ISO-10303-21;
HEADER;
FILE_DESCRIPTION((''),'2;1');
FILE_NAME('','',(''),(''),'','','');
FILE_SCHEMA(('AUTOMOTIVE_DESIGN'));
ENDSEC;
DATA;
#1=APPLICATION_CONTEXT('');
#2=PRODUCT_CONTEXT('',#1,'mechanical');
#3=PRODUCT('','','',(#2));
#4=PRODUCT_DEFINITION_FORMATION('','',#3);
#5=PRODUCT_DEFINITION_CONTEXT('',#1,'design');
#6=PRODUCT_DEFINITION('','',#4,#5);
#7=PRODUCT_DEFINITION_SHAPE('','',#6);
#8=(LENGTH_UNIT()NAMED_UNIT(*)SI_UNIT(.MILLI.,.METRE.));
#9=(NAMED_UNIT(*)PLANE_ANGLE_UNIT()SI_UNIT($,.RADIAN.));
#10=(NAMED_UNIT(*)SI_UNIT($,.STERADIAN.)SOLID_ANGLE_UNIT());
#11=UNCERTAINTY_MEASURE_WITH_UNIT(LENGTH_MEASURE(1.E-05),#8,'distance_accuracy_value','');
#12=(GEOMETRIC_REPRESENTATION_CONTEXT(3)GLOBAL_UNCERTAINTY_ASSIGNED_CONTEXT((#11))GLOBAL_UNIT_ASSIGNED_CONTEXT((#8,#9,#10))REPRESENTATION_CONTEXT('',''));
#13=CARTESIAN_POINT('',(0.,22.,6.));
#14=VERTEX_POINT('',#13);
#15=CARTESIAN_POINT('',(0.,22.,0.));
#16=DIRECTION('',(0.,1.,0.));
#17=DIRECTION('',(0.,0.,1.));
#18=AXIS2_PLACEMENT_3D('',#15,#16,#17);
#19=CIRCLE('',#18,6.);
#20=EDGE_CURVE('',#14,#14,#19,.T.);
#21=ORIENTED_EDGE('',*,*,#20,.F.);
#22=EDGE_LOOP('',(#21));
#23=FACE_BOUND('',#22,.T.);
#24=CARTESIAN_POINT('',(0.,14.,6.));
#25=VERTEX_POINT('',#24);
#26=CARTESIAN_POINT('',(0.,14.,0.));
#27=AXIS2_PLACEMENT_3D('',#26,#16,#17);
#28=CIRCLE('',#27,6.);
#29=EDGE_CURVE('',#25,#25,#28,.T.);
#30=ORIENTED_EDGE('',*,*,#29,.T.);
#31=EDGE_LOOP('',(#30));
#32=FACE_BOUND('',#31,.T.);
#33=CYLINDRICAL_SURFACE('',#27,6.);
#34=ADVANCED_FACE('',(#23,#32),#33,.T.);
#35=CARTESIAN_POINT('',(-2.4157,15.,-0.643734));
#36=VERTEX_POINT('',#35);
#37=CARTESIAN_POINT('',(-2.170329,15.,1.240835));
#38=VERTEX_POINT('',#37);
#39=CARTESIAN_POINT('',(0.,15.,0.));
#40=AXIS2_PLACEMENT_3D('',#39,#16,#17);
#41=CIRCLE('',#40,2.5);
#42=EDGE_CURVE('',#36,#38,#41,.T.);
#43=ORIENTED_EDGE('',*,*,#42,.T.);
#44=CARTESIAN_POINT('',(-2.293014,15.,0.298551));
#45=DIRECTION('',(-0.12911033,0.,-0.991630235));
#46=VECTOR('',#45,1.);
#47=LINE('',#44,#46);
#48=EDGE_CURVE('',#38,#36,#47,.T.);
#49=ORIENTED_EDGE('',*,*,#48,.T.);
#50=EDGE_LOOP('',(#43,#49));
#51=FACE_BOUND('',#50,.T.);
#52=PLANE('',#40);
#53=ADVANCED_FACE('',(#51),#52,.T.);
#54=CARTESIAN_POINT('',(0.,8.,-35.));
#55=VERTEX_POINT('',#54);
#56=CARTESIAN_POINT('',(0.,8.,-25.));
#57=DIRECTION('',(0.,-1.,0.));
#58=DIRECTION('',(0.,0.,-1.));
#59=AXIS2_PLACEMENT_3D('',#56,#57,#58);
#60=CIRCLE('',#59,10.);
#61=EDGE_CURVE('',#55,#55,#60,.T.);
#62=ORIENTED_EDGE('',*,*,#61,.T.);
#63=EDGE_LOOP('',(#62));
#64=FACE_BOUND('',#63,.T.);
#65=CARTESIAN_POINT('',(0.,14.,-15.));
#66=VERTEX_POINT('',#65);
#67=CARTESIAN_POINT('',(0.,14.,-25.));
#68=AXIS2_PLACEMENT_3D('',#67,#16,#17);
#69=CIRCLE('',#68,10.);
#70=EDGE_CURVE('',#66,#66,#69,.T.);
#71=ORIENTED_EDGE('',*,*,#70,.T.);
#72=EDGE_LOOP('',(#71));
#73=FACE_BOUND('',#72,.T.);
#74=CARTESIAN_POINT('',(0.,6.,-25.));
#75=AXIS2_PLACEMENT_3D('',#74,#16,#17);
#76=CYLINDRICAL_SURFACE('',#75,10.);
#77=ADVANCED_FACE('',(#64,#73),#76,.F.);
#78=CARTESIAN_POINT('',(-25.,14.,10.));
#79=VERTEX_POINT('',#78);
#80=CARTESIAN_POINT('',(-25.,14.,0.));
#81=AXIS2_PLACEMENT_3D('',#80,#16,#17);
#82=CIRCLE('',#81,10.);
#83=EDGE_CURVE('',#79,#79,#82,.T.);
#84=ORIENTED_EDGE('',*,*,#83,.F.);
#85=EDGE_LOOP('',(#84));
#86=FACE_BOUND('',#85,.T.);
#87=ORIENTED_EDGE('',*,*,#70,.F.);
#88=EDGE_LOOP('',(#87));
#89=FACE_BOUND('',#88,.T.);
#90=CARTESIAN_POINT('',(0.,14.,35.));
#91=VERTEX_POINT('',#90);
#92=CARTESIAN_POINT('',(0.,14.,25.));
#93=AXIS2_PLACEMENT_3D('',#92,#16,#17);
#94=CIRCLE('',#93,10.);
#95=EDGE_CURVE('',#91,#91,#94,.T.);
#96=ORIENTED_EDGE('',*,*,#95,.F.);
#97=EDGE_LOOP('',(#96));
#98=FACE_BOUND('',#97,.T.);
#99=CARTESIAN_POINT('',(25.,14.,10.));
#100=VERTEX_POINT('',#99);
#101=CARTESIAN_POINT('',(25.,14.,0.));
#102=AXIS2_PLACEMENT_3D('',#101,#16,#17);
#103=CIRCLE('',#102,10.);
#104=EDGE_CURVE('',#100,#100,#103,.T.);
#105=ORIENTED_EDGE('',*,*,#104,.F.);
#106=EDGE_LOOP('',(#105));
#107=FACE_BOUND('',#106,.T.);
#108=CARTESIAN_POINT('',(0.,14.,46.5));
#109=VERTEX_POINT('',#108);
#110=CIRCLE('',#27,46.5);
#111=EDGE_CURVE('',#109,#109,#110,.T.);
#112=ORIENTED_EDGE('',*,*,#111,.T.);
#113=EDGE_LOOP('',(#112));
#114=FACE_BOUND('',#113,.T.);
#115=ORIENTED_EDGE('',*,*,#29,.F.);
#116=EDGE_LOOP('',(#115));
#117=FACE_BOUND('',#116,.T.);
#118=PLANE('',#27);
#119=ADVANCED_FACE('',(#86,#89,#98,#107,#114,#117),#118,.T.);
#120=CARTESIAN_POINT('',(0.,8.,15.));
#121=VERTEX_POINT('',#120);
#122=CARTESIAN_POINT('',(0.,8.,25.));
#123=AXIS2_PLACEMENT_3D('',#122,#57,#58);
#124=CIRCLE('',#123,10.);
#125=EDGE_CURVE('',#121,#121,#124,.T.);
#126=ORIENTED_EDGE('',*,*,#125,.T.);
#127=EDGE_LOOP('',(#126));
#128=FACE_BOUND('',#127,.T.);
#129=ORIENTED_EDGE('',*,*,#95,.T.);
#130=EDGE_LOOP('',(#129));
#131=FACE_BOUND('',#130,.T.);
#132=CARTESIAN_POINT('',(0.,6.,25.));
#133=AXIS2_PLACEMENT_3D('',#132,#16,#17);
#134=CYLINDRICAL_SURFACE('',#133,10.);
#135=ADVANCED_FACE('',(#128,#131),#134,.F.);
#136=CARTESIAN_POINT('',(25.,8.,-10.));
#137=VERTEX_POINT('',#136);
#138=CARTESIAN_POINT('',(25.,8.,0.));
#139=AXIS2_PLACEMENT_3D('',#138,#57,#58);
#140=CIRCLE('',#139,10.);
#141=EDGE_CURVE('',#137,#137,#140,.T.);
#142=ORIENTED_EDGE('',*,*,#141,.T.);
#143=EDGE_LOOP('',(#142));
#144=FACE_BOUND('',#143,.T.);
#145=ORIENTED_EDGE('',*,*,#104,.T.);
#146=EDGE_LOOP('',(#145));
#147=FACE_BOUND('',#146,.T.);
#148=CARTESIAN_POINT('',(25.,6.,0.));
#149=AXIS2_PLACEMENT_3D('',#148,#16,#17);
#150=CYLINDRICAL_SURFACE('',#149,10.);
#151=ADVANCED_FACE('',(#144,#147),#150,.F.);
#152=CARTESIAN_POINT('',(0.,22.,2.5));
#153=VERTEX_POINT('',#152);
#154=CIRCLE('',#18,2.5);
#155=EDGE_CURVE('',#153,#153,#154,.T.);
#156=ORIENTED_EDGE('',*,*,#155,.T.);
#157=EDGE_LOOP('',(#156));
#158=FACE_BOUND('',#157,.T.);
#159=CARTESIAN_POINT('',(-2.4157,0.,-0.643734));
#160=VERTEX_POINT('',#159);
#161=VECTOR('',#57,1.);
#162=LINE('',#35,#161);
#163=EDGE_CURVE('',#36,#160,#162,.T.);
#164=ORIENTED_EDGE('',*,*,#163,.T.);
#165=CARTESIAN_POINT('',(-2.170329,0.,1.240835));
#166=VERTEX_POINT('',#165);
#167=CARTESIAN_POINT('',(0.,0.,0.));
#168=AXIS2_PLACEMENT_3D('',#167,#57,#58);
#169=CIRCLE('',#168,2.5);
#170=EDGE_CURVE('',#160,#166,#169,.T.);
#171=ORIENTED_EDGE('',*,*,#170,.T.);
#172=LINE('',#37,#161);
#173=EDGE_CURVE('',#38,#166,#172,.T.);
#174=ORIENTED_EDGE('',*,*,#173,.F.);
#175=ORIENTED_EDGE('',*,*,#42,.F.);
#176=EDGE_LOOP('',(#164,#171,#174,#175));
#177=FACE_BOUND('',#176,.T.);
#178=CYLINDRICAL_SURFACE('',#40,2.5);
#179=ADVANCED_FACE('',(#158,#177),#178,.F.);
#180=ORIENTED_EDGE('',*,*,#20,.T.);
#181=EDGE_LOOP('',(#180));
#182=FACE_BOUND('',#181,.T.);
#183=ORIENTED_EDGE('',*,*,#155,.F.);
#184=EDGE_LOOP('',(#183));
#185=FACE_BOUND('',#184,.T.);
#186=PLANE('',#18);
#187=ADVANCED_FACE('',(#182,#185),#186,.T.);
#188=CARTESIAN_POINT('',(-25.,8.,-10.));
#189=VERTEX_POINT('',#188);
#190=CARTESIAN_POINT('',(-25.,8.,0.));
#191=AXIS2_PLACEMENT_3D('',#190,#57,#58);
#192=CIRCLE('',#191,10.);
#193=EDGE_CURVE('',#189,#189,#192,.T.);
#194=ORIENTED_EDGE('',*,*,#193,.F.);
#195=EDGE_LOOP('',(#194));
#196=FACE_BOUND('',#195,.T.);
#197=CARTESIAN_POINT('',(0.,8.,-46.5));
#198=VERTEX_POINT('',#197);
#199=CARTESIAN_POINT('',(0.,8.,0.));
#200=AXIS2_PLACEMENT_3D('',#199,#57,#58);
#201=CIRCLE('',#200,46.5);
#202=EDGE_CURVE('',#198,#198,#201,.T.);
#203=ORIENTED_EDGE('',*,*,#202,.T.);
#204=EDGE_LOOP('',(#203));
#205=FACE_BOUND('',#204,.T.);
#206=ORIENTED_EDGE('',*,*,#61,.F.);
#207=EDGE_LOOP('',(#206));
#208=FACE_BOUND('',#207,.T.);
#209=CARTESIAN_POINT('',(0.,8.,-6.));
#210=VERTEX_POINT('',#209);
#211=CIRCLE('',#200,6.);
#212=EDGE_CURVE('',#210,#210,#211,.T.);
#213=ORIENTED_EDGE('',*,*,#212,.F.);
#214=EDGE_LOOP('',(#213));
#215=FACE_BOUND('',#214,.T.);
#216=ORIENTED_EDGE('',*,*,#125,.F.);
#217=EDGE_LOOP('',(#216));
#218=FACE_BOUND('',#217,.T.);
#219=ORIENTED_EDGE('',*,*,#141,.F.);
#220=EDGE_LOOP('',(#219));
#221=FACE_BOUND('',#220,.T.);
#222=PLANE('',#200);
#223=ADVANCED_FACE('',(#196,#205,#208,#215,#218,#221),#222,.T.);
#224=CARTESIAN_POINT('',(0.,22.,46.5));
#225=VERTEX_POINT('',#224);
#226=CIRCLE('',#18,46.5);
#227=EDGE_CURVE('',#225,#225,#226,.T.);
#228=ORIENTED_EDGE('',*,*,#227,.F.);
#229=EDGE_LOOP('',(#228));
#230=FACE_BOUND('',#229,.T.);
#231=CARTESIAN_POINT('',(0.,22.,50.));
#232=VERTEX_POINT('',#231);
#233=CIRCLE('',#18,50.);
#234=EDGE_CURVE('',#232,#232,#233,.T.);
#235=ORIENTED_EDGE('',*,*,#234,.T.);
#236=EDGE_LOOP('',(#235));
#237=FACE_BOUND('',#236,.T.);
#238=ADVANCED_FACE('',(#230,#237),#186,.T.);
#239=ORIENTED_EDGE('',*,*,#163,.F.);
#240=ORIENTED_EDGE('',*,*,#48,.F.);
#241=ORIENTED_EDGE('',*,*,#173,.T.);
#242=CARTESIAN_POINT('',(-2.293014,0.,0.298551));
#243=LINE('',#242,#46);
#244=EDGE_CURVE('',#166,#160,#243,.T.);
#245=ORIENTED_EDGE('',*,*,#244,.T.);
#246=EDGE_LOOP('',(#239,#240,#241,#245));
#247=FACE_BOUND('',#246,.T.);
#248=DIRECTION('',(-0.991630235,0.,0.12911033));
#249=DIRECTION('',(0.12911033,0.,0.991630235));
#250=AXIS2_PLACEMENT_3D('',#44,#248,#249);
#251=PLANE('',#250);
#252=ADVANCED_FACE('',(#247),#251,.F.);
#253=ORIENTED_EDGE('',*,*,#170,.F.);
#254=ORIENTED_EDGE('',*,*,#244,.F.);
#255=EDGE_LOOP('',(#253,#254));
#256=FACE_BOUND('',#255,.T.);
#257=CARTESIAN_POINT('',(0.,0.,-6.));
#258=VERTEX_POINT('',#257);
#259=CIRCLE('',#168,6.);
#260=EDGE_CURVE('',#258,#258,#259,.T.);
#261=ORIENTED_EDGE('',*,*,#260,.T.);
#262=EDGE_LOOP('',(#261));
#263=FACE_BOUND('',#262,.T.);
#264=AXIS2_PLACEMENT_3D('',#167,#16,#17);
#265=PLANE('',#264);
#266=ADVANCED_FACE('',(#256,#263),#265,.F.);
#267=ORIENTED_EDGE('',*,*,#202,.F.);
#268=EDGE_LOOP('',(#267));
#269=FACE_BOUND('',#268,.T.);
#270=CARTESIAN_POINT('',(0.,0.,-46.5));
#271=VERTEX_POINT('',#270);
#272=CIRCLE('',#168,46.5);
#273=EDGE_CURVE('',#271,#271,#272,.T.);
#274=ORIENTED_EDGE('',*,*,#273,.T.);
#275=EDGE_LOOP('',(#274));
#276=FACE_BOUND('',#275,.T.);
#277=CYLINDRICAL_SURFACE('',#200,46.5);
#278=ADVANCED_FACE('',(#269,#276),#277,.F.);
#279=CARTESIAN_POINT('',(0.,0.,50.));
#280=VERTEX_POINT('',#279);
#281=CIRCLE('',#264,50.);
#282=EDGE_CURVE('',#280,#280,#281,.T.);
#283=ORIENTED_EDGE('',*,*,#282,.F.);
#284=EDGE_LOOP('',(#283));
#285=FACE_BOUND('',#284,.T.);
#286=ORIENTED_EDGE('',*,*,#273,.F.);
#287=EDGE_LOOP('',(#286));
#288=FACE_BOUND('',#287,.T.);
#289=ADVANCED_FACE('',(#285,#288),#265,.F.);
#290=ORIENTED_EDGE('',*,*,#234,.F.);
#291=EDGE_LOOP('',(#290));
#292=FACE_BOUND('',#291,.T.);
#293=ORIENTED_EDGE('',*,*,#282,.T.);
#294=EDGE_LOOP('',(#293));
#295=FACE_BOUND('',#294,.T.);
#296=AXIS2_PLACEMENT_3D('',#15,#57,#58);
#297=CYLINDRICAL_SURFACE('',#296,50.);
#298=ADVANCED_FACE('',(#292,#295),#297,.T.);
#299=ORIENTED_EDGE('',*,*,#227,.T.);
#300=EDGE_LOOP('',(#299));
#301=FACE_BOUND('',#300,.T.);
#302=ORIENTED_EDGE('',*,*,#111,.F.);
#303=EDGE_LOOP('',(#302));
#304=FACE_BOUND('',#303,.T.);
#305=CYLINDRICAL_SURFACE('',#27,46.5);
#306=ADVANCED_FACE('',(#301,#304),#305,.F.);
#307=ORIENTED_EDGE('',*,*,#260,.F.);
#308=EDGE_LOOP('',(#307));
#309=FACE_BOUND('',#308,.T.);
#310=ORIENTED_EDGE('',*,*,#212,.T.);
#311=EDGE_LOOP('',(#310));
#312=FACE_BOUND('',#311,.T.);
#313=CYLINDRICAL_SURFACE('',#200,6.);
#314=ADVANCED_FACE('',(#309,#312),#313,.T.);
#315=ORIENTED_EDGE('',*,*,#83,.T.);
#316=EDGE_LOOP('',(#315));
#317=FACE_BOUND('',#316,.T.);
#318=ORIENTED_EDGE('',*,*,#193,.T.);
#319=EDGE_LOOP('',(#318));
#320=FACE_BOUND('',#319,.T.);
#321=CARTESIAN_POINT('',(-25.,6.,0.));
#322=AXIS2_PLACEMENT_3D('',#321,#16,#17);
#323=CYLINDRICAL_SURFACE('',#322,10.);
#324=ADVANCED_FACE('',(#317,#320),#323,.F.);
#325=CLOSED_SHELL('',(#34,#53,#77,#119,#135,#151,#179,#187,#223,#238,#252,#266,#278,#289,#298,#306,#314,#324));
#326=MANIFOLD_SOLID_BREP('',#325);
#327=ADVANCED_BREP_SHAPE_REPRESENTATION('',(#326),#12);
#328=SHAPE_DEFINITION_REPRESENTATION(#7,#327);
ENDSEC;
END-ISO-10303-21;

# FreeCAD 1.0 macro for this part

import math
import FreeCAD as App
import Part
import Sketcher

V = App.Vector
Q = App.Units.Quantity

doc = App.newDocument("Part")
params = doc.addObject("Spreadsheet::Sheet", "Params")
for row, (alias, value) in enumerate([
    ("sketch1_diameter", "100 mm"),
    ("pad1_length", "22 mm"),
    ("sketch2_diameter", "5 mm"),
    ("pocket1_length", "7 mm"),
    ("sketch3_radius", "2.5 mm"),
    ("pocket2_length", "15 mm"),
    ("sketch4_diameter", "93 mm"),
    ("sketch4_diameter2", "12 mm"),
    ("pocket3_length", "8 mm"),
    ("sketch5_diameter", "93 mm"),
    ("sketch5_diameter2", "12 mm"),
    ("pocket4_length", "8 mm"),
    ("sketch6_diameter", "20 mm"),
    ("pocket5_length", "8 mm"),
    ("sketch7_diameter", "20 mm"),
    ("pocket6_length", "8 mm"),
    ("sketch8_diameter", "20 mm"),
    ("pocket7_length", "8 mm"),
    ("sketch9_diameter", "20 mm"),
    ("pocket8_length", "8 mm"),
], start=1):
    params.set(f"A{row}", alias)
    params.set(f"B{row}", "=" + value)
    params.setAlias(f"B{row}", alias)

body = doc.addObject("PartDesign::Body", "Body")

sketch1 = body.newObject("Sketcher::SketchObject", "Sketch")
sketch1.AttachmentSupport = (doc.getObject("XZ_Plane"), [""])
sketch1.MapMode = "FlatFace"
sketch1.addGeometry(Part.Circle(V(0, 0, 0), V(0, 0, 1), 50), False)
sketch1.addConstraint([
    Sketcher.Constraint("Coincident", 0, 3, -1, 1),
    Sketcher.Constraint("Diameter", 0, Q("100 mm")),
])
sketch1.setExpression("Constraints[1]", "Params.sketch1_diameter")
pad1 = body.newObject("PartDesign::Pad", "Pad")
pad1.Profile = sketch1
pad1.setExpression("Length", "Params.pad1_length")
pad1.Reversed = True

sketch2 = body.newObject("Sketcher::SketchObject", "Sketch001")
sketch2.AttachmentSupport = (doc.getObject("XZ_Plane"), [""])
sketch2.MapMode = "FlatFace"
sketch2.AttachmentOffset = App.Placement(V(0, 0, -22), App.Rotation())
sketch2.addGeometry(Part.Circle(V(0, 0, 0), V(0, 0, 1), 2.5), False)
sketch2.addConstraint([
    Sketcher.Constraint("Coincident", 0, 3, -1, 1),
    Sketcher.Constraint("Diameter", 0, Q("5 mm")),
])
sketch2.setExpression("Constraints[1]", "Params.sketch2_diameter")
pocket1 = body.newObject("PartDesign::Pocket", "Pocket")
pocket1.Profile = sketch2
pocket1.setExpression("Length", "Params.pocket1_length")
pocket1.Reversed = True

sketch3 = body.newObject("Sketcher::SketchObject", "Sketch002")
sketch3.AttachmentSupport = (doc.getObject("XZ_Plane"), [""])
sketch3.MapMode = "FlatFace"
sketch3.AttachmentOffset = App.Placement(V(0, 0, -15), App.Rotation())
sketch3.addGeometry([
    Part.ArcOfCircle(Part.Circle(V(0, 0, 0), V(0, 0, 1), 2.5), math.radians(-165), math.radians(150)),
    Part.LineSegment(V(-2.2, 1.2, 0), V(-2.4, -0.6, 0)),
], False)
sketch3.addConstraint([
    Sketcher.Constraint("Coincident", 0, 1, 1, 2),
    Sketcher.Constraint("Coincident", 1, 1, 0, 2),
    Sketcher.Constraint("Coincident", 0, 3, -1, 1),
    Sketcher.Constraint("Radius", 0, Q("2.5 mm")),
    Sketcher.Constraint("DistanceX", 0, 1, -1, 1, Q("2.4157 mm")),
    Sketcher.Constraint("DistanceX", 1, 1, -1, 1, Q("2.170329 mm")),
])
sketch3.setExpression("Constraints[3]", "Params.sketch3_radius")
pocket2 = body.newObject("PartDesign::Pocket", "Pocket001")
pocket2.Profile = sketch3
pocket2.setExpression("Length", "Params.pocket2_length")
pocket2.Reversed = True

sketch4 = body.newObject("Sketcher::SketchObject", "Sketch003")
sketch4.AttachmentSupport = (doc.getObject("XZ_Plane"), [""])
sketch4.MapMode = "FlatFace"
sketch4.AttachmentOffset = App.Placement(V(0, 0, -22), App.Rotation())
sketch4.addGeometry([
    Part.Circle(V(0, 0, 0), V(0, 0, 1), 46),
    Part.Circle(V(0, 0, 0), V(0, 0, 1), 6),
], False)
sketch4.addConstraint([
    Sketcher.Constraint("Coincident", 0, 3, -1, 1),
    Sketcher.Constraint("Coincident", 1, 3, -1, 1),
    Sketcher.Constraint("Diameter", 0, Q("93 mm")),
    Sketcher.Constraint("Diameter", 1, Q("12 mm")),
])
sketch4.setExpression("Constraints[2]", "Params.sketch4_diameter")
sketch4.setExpression("Constraints[3]", "Params.sketch4_diameter2")
pocket3 = body.newObject("PartDesign::Pocket", "Pocket002")
pocket3.Profile = sketch4
pocket3.setExpression("Length", "Params.pocket3_length")
pocket3.Reversed = True

sketch5 = body.newObject("Sketcher::SketchObject", "Sketch004")
sketch5.AttachmentSupport = (doc.getObject("XZ_Plane"), [""])
sketch5.MapMode = "FlatFace"
sketch5.AttachmentOffset = App.Placement(V(0, 0, -8), App.Rotation())
sketch5.addGeometry([
    Part.Circle(V(0, 0, 0), V(0, 0, 1), 46),
    Part.Circle(V(0, 0, 0), V(0, 0, 1), 6),
], False)
sketch5.addConstraint([
    Sketcher.Constraint("Coincident", 0, 3, -1, 1),
    Sketcher.Constraint("Coincident", 1, 3, -1, 1),
    Sketcher.Constraint("Diameter", 0, Q("93 mm")),
    Sketcher.Constraint("Diameter", 1, Q("12 mm")),
])
sketch5.setExpression("Constraints[2]", "Params.sketch5_diameter")
sketch5.setExpression("Constraints[3]", "Params.sketch5_diameter2")
pocket4 = body.newObject("PartDesign::Pocket", "Pocket003")
pocket4.Profile = sketch5
pocket4.setExpression("Length", "Params.pocket4_length")
pocket4.Reversed = True

sketch6 = body.newObject("Sketcher::SketchObject", "Sketch005")
sketch6.AttachmentSupport = (doc.getObject("XZ_Plane"), [""])
sketch6.MapMode = "FlatFace"
sketch6.AttachmentOffset = App.Placement(V(0, 0, -14), App.Rotation())
sketch6.addGeometry(Part.Circle(V(0, -25, 0), V(0, 0, 1), 10), False)
sketch6.addConstraint([
    Sketcher.Constraint("PointOnObject", 0, 3, -2),
    Sketcher.Constraint("Diameter", 0, Q("20 mm")),
    Sketcher.Constraint("DistanceY", 0, 3, -1, 1, Q("25 mm")),
])
sketch6.setExpression("Constraints[1]", "Params.sketch6_diameter")
pocket5 = body.newObject("PartDesign::Pocket", "Pocket004")
pocket5.Profile = sketch6
pocket5.setExpression("Length", "Params.pocket5_length")
pocket5.Reversed = True

sketch7 = body.newObject("Sketcher::SketchObject", "Sketch006")
sketch7.AttachmentSupport = (doc.getObject("XZ_Plane"), [""])
sketch7.MapMode = "FlatFace"
sketch7.AttachmentOffset = App.Placement(V(0, 0, -14), App.Rotation())
sketch7.addGeometry(Part.Circle(V(25, 0, 0), V(0, 0, 1), 10), False)
sketch7.addConstraint([
    Sketcher.Constraint("PointOnObject", 0, 3, -1),
    Sketcher.Constraint("Diameter", 0, Q("20 mm")),
    Sketcher.Constraint("DistanceX", -1, 1, 0, 3, Q("25 mm")),
])
sketch7.setExpression("Constraints[1]", "Params.sketch7_diameter")
pocket6 = body.newObject("PartDesign::Pocket", "Pocket005")
pocket6.Profile = sketch7
pocket6.setExpression("Length", "Params.pocket6_length")
pocket6.Reversed = True

sketch8 = body.newObject("Sketcher::SketchObject", "Sketch007")
sketch8.AttachmentSupport = (doc.getObject("XZ_Plane"), [""])
sketch8.MapMode = "FlatFace"
sketch8.AttachmentOffset = App.Placement(V(0, 0, -14), App.Rotation())
sketch8.addGeometry(Part.Circle(V(0, 25, 0), V(0, 0, 1), 10), False)
sketch8.addConstraint([
    Sketcher.Constraint("PointOnObject", 0, 3, -2),
    Sketcher.Constraint("Diameter", 0, Q("20 mm")),
    Sketcher.Constraint("DistanceY", -1, 1, 0, 3, Q("25 mm")),
])
sketch8.setExpression("Constraints[1]", "Params.sketch8_diameter")
pocket7 = body.newObject("PartDesign::Pocket", "Pocket006")
pocket7.Profile = sketch8
pocket7.setExpression("Length", "Params.pocket7_length")
pocket7.Reversed = True

sketch9 = body.newObject("Sketcher::SketchObject", "Sketch008")
sketch9.AttachmentSupport = (doc.getObject("XZ_Plane"), [""])
sketch9.MapMode = "FlatFace"
sketch9.AttachmentOffset = App.Placement(V(0, 0, -14), App.Rotation())
sketch9.addGeometry(Part.Circle(V(-25, 0, 0), V(0, 0, 1), 10), False)
sketch9.addConstraint([
    Sketcher.Constraint("PointOnObject", 0, 3, -1),
    Sketcher.Constraint("Diameter", 0, Q("20 mm")),
    Sketcher.Constraint("DistanceX", 0, 3, -1, 1, Q("25 mm")),
])
sketch9.setExpression("Constraints[1]", "Params.sketch9_diameter")
pocket8 = body.newObject("PartDesign::Pocket", "Pocket007")
pocket8.Profile = sketch9
pocket8.setExpression("Length", "Params.pocket8_length")
pocket8.Reversed = True

doc.recompute()
